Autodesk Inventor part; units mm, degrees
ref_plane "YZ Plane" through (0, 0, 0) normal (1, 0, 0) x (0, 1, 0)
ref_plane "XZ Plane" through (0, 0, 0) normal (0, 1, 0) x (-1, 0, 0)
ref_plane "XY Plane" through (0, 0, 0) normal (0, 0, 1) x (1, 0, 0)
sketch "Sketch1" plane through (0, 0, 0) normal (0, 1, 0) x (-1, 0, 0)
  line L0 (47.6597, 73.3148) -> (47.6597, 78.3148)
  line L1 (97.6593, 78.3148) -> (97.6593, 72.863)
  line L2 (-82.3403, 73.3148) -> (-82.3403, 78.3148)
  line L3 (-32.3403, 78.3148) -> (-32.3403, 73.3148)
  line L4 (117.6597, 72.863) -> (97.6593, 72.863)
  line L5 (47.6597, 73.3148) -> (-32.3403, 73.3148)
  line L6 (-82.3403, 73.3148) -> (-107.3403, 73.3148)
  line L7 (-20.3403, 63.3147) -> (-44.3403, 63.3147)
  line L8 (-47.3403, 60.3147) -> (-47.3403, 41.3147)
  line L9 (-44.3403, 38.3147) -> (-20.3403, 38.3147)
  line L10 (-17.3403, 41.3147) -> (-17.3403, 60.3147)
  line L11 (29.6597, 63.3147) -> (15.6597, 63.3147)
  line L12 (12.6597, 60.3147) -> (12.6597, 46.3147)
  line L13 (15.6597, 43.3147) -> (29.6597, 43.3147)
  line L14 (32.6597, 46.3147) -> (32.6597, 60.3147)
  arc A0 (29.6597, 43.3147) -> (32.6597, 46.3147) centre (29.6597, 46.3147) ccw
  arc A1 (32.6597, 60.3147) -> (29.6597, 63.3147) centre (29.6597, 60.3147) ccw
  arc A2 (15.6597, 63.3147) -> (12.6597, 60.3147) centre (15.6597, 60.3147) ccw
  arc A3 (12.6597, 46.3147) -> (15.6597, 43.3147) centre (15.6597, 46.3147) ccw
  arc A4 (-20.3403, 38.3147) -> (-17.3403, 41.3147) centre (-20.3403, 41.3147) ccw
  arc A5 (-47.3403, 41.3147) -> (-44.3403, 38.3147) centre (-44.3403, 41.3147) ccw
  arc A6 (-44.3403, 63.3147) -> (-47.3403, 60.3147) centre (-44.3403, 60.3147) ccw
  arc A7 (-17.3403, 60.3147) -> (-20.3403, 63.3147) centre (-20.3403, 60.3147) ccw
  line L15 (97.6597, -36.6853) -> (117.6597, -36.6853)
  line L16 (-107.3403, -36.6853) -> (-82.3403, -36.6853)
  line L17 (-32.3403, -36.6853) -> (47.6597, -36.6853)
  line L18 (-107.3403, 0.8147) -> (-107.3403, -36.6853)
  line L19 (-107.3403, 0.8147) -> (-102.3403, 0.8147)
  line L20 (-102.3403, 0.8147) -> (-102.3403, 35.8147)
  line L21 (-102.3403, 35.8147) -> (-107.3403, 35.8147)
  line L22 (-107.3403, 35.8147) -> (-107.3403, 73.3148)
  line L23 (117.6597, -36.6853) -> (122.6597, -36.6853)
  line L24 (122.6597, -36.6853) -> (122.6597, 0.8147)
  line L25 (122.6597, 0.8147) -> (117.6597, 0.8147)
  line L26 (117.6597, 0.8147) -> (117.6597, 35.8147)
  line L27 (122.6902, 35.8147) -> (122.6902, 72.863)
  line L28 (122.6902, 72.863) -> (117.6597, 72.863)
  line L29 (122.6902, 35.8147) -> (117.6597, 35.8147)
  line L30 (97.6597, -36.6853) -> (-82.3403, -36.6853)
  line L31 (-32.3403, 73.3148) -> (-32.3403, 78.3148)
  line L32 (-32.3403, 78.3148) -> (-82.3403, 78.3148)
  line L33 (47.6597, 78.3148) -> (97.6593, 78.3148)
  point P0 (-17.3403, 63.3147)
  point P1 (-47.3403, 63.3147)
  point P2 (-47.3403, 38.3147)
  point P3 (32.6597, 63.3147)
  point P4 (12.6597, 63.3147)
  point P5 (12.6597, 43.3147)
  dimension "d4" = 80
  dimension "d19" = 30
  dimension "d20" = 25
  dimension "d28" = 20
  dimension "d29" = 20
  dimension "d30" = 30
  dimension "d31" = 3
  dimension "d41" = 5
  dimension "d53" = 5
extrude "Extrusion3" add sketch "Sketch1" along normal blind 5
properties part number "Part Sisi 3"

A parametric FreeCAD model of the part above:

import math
import FreeCAD as App
import Part
import Sketcher

V = App.Vector
Q = App.Units.Quantity


def add_polygon(sketch, points):
    """Adds a closed chain of lines whose ends are joined by coincident constraints."""
    first, n = sketch.GeometryCount, len(points)
    for a, b in zip(points, points[1:] + points[:1]):
        sketch.addGeometry(Part.LineSegment(App.Vector(*a, 0), App.Vector(*b, 0)), False)
    for i in range(n):
        sketch.addConstraint(Sketcher.Constraint("Coincident", first + i, 2, first + (i + 1) % n, 1))

doc = App.newDocument("Part")
body = doc.addObject("PartDesign::Body", "Body")

sketch1 = doc.addObject("Sketcher::SketchObject", "Sketch")
body.addObject(sketch1)
sketch1.AttachmentSupport = (doc.XZ_Plane, [""])
sketch1.MapMode = "FlatFace"
add_polygon(sketch1, [(-47.7, 78.3), (-47.7, 73.3), (32.3, 73.3), (32.3, 78.3), (82.3, 78.3), (82.3, 73.3), (107.3, 73.3), (107.3, 35.8), (102.3, 35.8), (102.3, 0.8), (107.3, 0.8), (107.3, -36.7), (-122.7, -36.7), (-122.7, 0.8), (-117.7, 0.8), (-117.7, 35.8), (-122.7, 35.8), (-122.7, 72.9), (-97.7, 72.9), (-97.7, 78.3)])
sketch1.addGeometry(Part.LineSegment(V(44.3, 63.3, 0), V(20.3, 63.3, 0)), False)
sketch1.addGeometry(Part.ArcOfCircle(Part.Circle(V(20.3, 60.3, 0), V(0, 0, 1), 3), math.radians(90), math.radians(180)), False)
sketch1.addGeometry(Part.LineSegment(V(17.3, 60.3, 0), V(17.3, 41.3, 0)), False)
sketch1.addGeometry(Part.ArcOfCircle(Part.Circle(V(20.3, 41.3, 0), V(0, 0, 1), 3), math.radians(180), math.radians(270)), False)
sketch1.addGeometry(Part.LineSegment(V(20.3, 38.3, 0), V(44.3, 38.3, 0)), False)
sketch1.addGeometry(Part.ArcOfCircle(Part.Circle(V(44.3, 41.3, 0), V(0, 0, 1), 3), math.radians(-90), math.radians(0)), False)
sketch1.addGeometry(Part.LineSegment(V(47.3, 41.3, 0), V(47.3, 60.3, 0)), False)
sketch1.addGeometry(Part.ArcOfCircle(Part.Circle(V(44.3, 60.3, 0), V(0, 0, 1), 3), math.radians(0), math.radians(90)), False)
sketch1.addGeometry(Part.LineSegment(V(-15.7, 63.3, 0), V(-29.7, 63.3, 0)), False)
sketch1.addGeometry(Part.ArcOfCircle(Part.Circle(V(-29.7, 60.3, 0), V(0, 0, 1), 3), math.radians(90), math.radians(180)), False)
sketch1.addGeometry(Part.LineSegment(V(-32.7, 60.3, 0), V(-32.7, 46.3, 0)), False)
sketch1.addGeometry(Part.ArcOfCircle(Part.Circle(V(-29.7, 46.3, 0), V(0, 0, 1), 3), math.radians(180), math.radians(270)), False)
sketch1.addGeometry(Part.LineSegment(V(-29.7, 43.3, 0), V(-15.7, 43.3, 0)), False)
sketch1.addGeometry(Part.ArcOfCircle(Part.Circle(V(-15.7, 46.3, 0), V(0, 0, 1), 3), math.radians(-90), math.radians(0)), False)
sketch1.addGeometry(Part.LineSegment(V(-12.7, 46.3, 0), V(-12.7, 60.3, 0)), False)
sketch1.addGeometry(Part.ArcOfCircle(Part.Circle(V(-15.7, 60.3, 0), V(0, 0, 1), 3), math.radians(0), math.radians(90)), False)
sketch1.addConstraint(Sketcher.Constraint("Tangent", 20, 2, 21, 1))
sketch1.addConstraint(Sketcher.Constraint("Tangent", 21, 2, 22, 1))
sketch1.addConstraint(Sketcher.Constraint("Tangent", 22, 2, 23, 1))
sketch1.addConstraint(Sketcher.Constraint("Tangent", 23, 2, 24, 1))
sketch1.addConstraint(Sketcher.Constraint("Tangent", 24, 2, 25, 1))
sketch1.addConstraint(Sketcher.Constraint("Tangent", 25, 2, 26, 1))
sketch1.addConstraint(Sketcher.Constraint("Tangent", 26, 2, 27, 1))
sketch1.addConstraint(Sketcher.Constraint("Tangent", 27, 2, 20, 1))
sketch1.addConstraint(Sketcher.Constraint("Tangent", 28, 2, 29, 1))
sketch1.addConstraint(Sketcher.Constraint("Tangent", 29, 2, 30, 1))
sketch1.addConstraint(Sketcher.Constraint("Tangent", 30, 2, 31, 1))
sketch1.addConstraint(Sketcher.Constraint("Tangent", 31, 2, 32, 1))
sketch1.addConstraint(Sketcher.Constraint("Tangent", 32, 2, 33, 1))
sketch1.addConstraint(Sketcher.Constraint("Tangent", 33, 2, 34, 1))
sketch1.addConstraint(Sketcher.Constraint("Tangent", 34, 2, 35, 1))
sketch1.addConstraint(Sketcher.Constraint("Tangent", 35, 2, 28, 1))
sketch1.addConstraint(Sketcher.Constraint("Vertical", 0))
sketch1.addConstraint(Sketcher.Constraint("Horizontal", 1))
sketch1.addConstraint(Sketcher.Constraint("Vertical", 2))
sketch1.addConstraint(Sketcher.Constraint("Horizontal", 3))
sketch1.addConstraint(Sketcher.Constraint("Vertical", 4))
sketch1.addConstraint(Sketcher.Constraint("Horizontal", 5))
sketch1.addConstraint(Sketcher.Constraint("Vertical", 6))
sketch1.addConstraint(Sketcher.Constraint("Horizontal", 7))
sketch1.addConstraint(Sketcher.Constraint("Vertical", 8))
sketch1.addConstraint(Sketcher.Constraint("Horizontal", 9))
sketch1.addConstraint(Sketcher.Constraint("Vertical", 10))
sketch1.addConstraint(Sketcher.Constraint("Horizontal", 11))
sketch1.addConstraint(Sketcher.Constraint("Vertical", 12))
sketch1.addConstraint(Sketcher.Constraint("Horizontal", 13))
sketch1.addConstraint(Sketcher.Constraint("Vertical", 14))
sketch1.addConstraint(Sketcher.Constraint("Horizontal", 15))
sketch1.addConstraint(Sketcher.Constraint("Vertical", 16))
sketch1.addConstraint(Sketcher.Constraint("Horizontal", 17))
sketch1.addConstraint(Sketcher.Constraint("Vertical", 18))
sketch1.addConstraint(Sketcher.Constraint("Horizontal", 19))
sketch1.addConstraint(Sketcher.Constraint("Horizontal", 20))
sketch1.addConstraint(Sketcher.Constraint("Vertical", 22))
sketch1.addConstraint(Sketcher.Constraint("Horizontal", 24))
sketch1.addConstraint(Sketcher.Constraint("Vertical", 26))
sketch1.addConstraint(Sketcher.Constraint("Horizontal", 28))
sketch1.addConstraint(Sketcher.Constraint("Vertical", 30))
sketch1.addConstraint(Sketcher.Constraint("Horizontal", 32))
sketch1.addConstraint(Sketcher.Constraint("Vertical", 34))
sketch1.addConstraint(Sketcher.Constraint("Equal", 21, 23))
sketch1.addConstraint(Sketcher.Constraint("Equal", 23, 25))
sketch1.addConstraint(Sketcher.Constraint("Equal", 25, 27))
sketch1.addConstraint(Sketcher.Constraint("Equal", 27, 29))
sketch1.addConstraint(Sketcher.Constraint("Equal", 29, 31))
sketch1.addConstraint(Sketcher.Constraint("Equal", 31, 33))
sketch1.addConstraint(Sketcher.Constraint("Equal", 33, 35))
sketch1.addConstraint(Sketcher.Constraint("Horizontal", 27, 3, 29, 3))
sketch1.addConstraint(Sketcher.Constraint("Horizontal", 1, 2, 4, 2))
sketch1.addConstraint(Sketcher.Constraint("Horizontal", 9, 2, 12, 2))
sketch1.addConstraint(Sketcher.Constraint("Horizontal", 7, 2, 14, 2))
sketch1.addConstraint(Sketcher.Constraint("Horizontal", 3, 2, 18, 2))
sketch1.addConstraint(Sketcher.Constraint("Vertical", 6, 2, 9, 2))
sketch1.addConstraint(Sketcher.Constraint("Equal", 9, 13))
sketch1.addConstraint(Sketcher.Constraint("Equal", 13, 0))
sketch1.addConstraint(Sketcher.Constraint("Equal", 6, 10))
sketch1.addConstraint(Sketcher.Constraint("Equal", 32, 30))
sketch1.addConstraint(Sketcher.Constraint("Radius", 21, Q("3 mm")))
sketch1.addConstraint(Sketcher.Constraint("DistanceX", 1, 1, 1, 2, Q("80 mm")))
sketch1.addConstraint(Sketcher.Constraint("DistanceX", 5, 1, 5, 2, Q("25 mm")))
sketch1.addConstraint(Sketcher.Constraint("DistanceX", 7, 2, 7, 1, Q("5 mm")))
sketch1.addConstraint(Sketcher.Constraint("DistanceY", 23, 3, 31, 3, Q("5 mm")))
sketch1.addConstraint(Sketcher.Constraint("DistanceX", 3, 1, 3, 2, Q("50 mm")))
sketch1.addConstraint(Sketcher.Constraint("DistanceX", 11, 2, 11, 1, Q("230 mm")))
sketch1.addConstraint(Sketcher.Constraint("DistanceX", 20, 2, 20, 1, Q("24 mm")))
sketch1.addConstraint(Sketcher.Constraint("DistanceX", 28, 2, 28, 1, Q("14 mm")))
sketch1.addConstraint(Sketcher.Constraint("DistanceY", 8, 2, 8, 1, Q("35 mm")))
sketch1.addConstraint(Sketcher.Constraint("DistanceY", 6, 2, 6, 1, Q("37.5 mm")))
sketch1.addConstraint(Sketcher.Constraint("DistanceX", 29, 3, 21, 3, Q("50 mm")))
sketch1.addConstraint(Sketcher.Constraint("DistanceX", 0, 2, 29, 3, Q("18 mm")))
sketch1.addConstraint(Sketcher.Constraint("DistanceY", 29, 3, 0, 2, Q("13 mm")))
sketch1.addConstraint(Sketcher.Constraint("DistanceX", 14, 2, 17, 2, Q("20.0004 mm")))
sketch1.addConstraint(Sketcher.Constraint("DistanceX", 17, 1, 17, 2, Q("25.031 mm")))
sketch1.addConstraint(Sketcher.Constraint("DistanceY", 16, 1, 16, 2, Q("37.0483 mm")))
sketch1.addConstraint(Sketcher.Constraint("DistanceY", -1, 1, 16, 2, Q("72.863 mm")))
sketch1.addConstraint(Sketcher.Constraint("DistanceX", -1, 1, 21, 3, Q("20.3403 mm")))
pad1 = doc.addObject("PartDesign::Pad", "Pad")
body.addObject(pad1)
pad1.Profile = sketch1
pad1.Length = 5
pad1.Reversed = True

doc.recompute()
